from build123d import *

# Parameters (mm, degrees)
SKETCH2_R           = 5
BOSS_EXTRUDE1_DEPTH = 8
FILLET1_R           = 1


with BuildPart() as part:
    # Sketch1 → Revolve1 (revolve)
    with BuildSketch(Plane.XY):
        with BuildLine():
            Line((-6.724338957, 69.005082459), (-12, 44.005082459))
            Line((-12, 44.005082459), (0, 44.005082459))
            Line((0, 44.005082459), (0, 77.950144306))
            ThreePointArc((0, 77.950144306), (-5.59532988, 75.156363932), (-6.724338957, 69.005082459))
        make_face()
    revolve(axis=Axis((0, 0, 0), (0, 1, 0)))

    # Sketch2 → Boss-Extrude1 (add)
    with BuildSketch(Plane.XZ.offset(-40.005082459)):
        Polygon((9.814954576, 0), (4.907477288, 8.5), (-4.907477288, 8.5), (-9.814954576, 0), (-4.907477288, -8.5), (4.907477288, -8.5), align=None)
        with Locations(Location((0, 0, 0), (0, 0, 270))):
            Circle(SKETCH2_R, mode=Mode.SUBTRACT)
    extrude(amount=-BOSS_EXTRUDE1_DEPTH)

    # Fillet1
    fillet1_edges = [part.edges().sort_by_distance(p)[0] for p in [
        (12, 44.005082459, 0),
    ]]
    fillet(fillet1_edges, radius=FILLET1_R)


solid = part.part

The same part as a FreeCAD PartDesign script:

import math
import FreeCAD as App
import Part
import Sketcher
Q = App.Units.Quantity


def edges_at(feature, points):
    """Names of the edges that pass closest to the given points."""
    edges = feature.Shape.Edges
    near = lambda p: min(range(len(edges)), key=lambda i: edges[i].distToShape(Part.Vertex(*p))[0])
    return sorted({f"Edge{near(p) + 1}" for p in points})

doc = App.newDocument("Part")
params = doc.addObject("Spreadsheet::Sheet", "Params")
for row, (alias, value) in enumerate([
    ("sketch1_radius", "7 mm"),
    ("sketch1_width", "12 mm"),
    ("revolution_angle", "360 deg"),
    ("sketch2_diameter", "10 mm"),
    ("pad1_length", "8 mm"),
    ("fillet_radius", "1 mm"),
], start=1):
    params.set(f"A{row}", alias)
    params.set(f"B{row}", "=" + value)
    params.setAlias(f"B{row}", alias)

body = doc.addObject("PartDesign::Body", "Body")

sketch1 = body.newObject("Sketcher::SketchObject", "Sketch")
sketch1.AttachmentSupport = (doc.getObject("XY_Plane"), [""])
sketch1.MapMode = "FlatFace"
sketch1.addGeometry(Part.LineSegment(App.Vector(-6.724339, 69.005082, 0), App.Vector(-12, 44.005082, 0)), False)
sketch1.addGeometry(Part.LineSegment(App.Vector(-12, 44.005082, 0), App.Vector(0, 44.005082, 0)), False)
sketch1.addGeometry(Part.LineSegment(App.Vector(0, 44.005082, 0), App.Vector(0, 77.950144, 0)), False)
sketch1.addGeometry(Part.ArcOfCircle(Part.Circle(App.Vector(0, 70.950144, 0), App.Vector(0, 0, 1), 7), math.radians(90), math.radians(196.132881)), False)
sketch1.addConstraint(Sketcher.Constraint("Coincident", 0, 2, 1, 1))
sketch1.addConstraint(Sketcher.Constraint("Coincident", 1, 2, 2, 1))
sketch1.addConstraint(Sketcher.Constraint("Coincident", 2, 2, 3, 1))
sketch1.addConstraint(Sketcher.Constraint("Coincident", 3, 2, 0, 1))
sketch1.addConstraint(Sketcher.Constraint("Horizontal", 1))
sketch1.addConstraint(Sketcher.Constraint("Vertical", 2))
sketch1.addConstraint(Sketcher.Constraint("PointOnObject", 3, 3, -2))
sketch1.addConstraint(Sketcher.Constraint("PointOnObject", 1, 2, -2))
sketch1.addConstraint(Sketcher.Constraint("Radius", 3, 7.0))
sketch1.addConstraint(Sketcher.Constraint("DistanceX", 1, 1, 1, 2, 12.0))
sketch1.addConstraint(Sketcher.Constraint("DistanceY", 0, 2, 3, 2, 25.0))
sketch1.addConstraint(Sketcher.Constraint("DistanceY", 2, 1, 2, 2, 33.945062))
sketch1.addConstraint(Sketcher.Constraint("DistanceY", -1, 1, 3, 3, 70.950144))
sketch1.setExpression("Constraints[8]", "Params.sketch1_radius")
sketch1.setExpression("Constraints[9]", "Params.sketch1_width")
revolution = body.newObject("PartDesign::Revolution", "Revolution")
revolution.Profile = sketch1
revolution.ReferenceAxis = (sketch1, ["V_Axis"])
revolution.setExpression("Angle", "Params.revolution_angle")

sketch2 = body.newObject("Sketcher::SketchObject", "Sketch001")
sketch2.AttachmentSupport = (doc.getObject("XZ_Plane"), [""])
sketch2.MapMode = "FlatFace"
sketch2.AttachmentOffset = App.Placement(App.Vector(0, 0, -40.005082), App.Rotation())
sketch2.addGeometry(Part.LineSegment(App.Vector(9.814955, 0, 0), App.Vector(4.907477, 8.5, 0)), False)
sketch2.addGeometry(Part.LineSegment(App.Vector(4.907477, 8.5, 0), App.Vector(-4.907477, 8.5, 0)), False)
sketch2.addGeometry(Part.LineSegment(App.Vector(-4.907477, 8.5, 0), App.Vector(-9.814955, 0, 0)), False)
sketch2.addGeometry(Part.LineSegment(App.Vector(-9.814955, 0, 0), App.Vector(-4.907477, -8.5, 0)), False)
sketch2.addGeometry(Part.LineSegment(App.Vector(-4.907477, -8.5, 0), App.Vector(4.907477, -8.5, 0)), False)
sketch2.addGeometry(Part.LineSegment(App.Vector(4.907477, -8.5, 0), App.Vector(9.814955, 0, 0)), False)
sketch2.addGeometry(Part.Circle(App.Vector(0, 0, 0), App.Vector(0, 0, 1), 5), False)
sketch2.addConstraint(Sketcher.Constraint("Coincident", 0, 2, 1, 1))
sketch2.addConstraint(Sketcher.Constraint("Coincident", 1, 2, 2, 1))
sketch2.addConstraint(Sketcher.Constraint("Coincident", 2, 2, 3, 1))
sketch2.addConstraint(Sketcher.Constraint("Coincident", 3, 2, 4, 1))
sketch2.addConstraint(Sketcher.Constraint("Coincident", 4, 2, 5, 1))
sketch2.addConstraint(Sketcher.Constraint("Coincident", 5, 2, 0, 1))
sketch2.addConstraint(Sketcher.Constraint("Horizontal", 1))
sketch2.addConstraint(Sketcher.Constraint("Horizontal", 4))
sketch2.addConstraint(Sketcher.Constraint("Coincident", 6, 3, -1, 1))
sketch2.addConstraint(Sketcher.Constraint("Symmetric", 0, 2, 3, 2, -1, 1))
sketch2.addConstraint(Sketcher.Constraint("Symmetric", 2, 2, 5, 2, -1, 1))
sketch2.addConstraint(Sketcher.Constraint("PointOnObject", 2, 2, -1))
sketch2.addConstraint(Sketcher.Constraint("Parallel", 2, 5))
sketch2.addConstraint(Sketcher.Constraint("Vertical", 1, 2, 3, 2))
sketch2.addConstraint(Sketcher.Constraint("Diameter", 6, 10.0))
sketch2.addConstraint(Sketcher.Constraint("Angle", 0, Q("120 deg")))
sketch2.addConstraint(Sketcher.Constraint("DistanceY", 3, 2, 1, 2, 17.0))
sketch2.addConstraint(Sketcher.Constraint("DistanceX", 1, 2, 1, 1, 9.814955))
sketch2.setExpression("Constraints[14]", "Params.sketch2_diameter")
pad1 = body.newObject("PartDesign::Pad", "Pad")
pad1.Profile = sketch2
pad1.setExpression("Length", "Params.pad1_length")
pad1.Reversed = True
doc.recompute()

fillet = body.newObject("PartDesign::Fillet", "Fillet")
fillet.Base = (pad1, edges_at(pad1, [(12, 44.005, 0)]))
fillet.setExpression("Radius", "Params.fillet_radius")

doc.recompute()
